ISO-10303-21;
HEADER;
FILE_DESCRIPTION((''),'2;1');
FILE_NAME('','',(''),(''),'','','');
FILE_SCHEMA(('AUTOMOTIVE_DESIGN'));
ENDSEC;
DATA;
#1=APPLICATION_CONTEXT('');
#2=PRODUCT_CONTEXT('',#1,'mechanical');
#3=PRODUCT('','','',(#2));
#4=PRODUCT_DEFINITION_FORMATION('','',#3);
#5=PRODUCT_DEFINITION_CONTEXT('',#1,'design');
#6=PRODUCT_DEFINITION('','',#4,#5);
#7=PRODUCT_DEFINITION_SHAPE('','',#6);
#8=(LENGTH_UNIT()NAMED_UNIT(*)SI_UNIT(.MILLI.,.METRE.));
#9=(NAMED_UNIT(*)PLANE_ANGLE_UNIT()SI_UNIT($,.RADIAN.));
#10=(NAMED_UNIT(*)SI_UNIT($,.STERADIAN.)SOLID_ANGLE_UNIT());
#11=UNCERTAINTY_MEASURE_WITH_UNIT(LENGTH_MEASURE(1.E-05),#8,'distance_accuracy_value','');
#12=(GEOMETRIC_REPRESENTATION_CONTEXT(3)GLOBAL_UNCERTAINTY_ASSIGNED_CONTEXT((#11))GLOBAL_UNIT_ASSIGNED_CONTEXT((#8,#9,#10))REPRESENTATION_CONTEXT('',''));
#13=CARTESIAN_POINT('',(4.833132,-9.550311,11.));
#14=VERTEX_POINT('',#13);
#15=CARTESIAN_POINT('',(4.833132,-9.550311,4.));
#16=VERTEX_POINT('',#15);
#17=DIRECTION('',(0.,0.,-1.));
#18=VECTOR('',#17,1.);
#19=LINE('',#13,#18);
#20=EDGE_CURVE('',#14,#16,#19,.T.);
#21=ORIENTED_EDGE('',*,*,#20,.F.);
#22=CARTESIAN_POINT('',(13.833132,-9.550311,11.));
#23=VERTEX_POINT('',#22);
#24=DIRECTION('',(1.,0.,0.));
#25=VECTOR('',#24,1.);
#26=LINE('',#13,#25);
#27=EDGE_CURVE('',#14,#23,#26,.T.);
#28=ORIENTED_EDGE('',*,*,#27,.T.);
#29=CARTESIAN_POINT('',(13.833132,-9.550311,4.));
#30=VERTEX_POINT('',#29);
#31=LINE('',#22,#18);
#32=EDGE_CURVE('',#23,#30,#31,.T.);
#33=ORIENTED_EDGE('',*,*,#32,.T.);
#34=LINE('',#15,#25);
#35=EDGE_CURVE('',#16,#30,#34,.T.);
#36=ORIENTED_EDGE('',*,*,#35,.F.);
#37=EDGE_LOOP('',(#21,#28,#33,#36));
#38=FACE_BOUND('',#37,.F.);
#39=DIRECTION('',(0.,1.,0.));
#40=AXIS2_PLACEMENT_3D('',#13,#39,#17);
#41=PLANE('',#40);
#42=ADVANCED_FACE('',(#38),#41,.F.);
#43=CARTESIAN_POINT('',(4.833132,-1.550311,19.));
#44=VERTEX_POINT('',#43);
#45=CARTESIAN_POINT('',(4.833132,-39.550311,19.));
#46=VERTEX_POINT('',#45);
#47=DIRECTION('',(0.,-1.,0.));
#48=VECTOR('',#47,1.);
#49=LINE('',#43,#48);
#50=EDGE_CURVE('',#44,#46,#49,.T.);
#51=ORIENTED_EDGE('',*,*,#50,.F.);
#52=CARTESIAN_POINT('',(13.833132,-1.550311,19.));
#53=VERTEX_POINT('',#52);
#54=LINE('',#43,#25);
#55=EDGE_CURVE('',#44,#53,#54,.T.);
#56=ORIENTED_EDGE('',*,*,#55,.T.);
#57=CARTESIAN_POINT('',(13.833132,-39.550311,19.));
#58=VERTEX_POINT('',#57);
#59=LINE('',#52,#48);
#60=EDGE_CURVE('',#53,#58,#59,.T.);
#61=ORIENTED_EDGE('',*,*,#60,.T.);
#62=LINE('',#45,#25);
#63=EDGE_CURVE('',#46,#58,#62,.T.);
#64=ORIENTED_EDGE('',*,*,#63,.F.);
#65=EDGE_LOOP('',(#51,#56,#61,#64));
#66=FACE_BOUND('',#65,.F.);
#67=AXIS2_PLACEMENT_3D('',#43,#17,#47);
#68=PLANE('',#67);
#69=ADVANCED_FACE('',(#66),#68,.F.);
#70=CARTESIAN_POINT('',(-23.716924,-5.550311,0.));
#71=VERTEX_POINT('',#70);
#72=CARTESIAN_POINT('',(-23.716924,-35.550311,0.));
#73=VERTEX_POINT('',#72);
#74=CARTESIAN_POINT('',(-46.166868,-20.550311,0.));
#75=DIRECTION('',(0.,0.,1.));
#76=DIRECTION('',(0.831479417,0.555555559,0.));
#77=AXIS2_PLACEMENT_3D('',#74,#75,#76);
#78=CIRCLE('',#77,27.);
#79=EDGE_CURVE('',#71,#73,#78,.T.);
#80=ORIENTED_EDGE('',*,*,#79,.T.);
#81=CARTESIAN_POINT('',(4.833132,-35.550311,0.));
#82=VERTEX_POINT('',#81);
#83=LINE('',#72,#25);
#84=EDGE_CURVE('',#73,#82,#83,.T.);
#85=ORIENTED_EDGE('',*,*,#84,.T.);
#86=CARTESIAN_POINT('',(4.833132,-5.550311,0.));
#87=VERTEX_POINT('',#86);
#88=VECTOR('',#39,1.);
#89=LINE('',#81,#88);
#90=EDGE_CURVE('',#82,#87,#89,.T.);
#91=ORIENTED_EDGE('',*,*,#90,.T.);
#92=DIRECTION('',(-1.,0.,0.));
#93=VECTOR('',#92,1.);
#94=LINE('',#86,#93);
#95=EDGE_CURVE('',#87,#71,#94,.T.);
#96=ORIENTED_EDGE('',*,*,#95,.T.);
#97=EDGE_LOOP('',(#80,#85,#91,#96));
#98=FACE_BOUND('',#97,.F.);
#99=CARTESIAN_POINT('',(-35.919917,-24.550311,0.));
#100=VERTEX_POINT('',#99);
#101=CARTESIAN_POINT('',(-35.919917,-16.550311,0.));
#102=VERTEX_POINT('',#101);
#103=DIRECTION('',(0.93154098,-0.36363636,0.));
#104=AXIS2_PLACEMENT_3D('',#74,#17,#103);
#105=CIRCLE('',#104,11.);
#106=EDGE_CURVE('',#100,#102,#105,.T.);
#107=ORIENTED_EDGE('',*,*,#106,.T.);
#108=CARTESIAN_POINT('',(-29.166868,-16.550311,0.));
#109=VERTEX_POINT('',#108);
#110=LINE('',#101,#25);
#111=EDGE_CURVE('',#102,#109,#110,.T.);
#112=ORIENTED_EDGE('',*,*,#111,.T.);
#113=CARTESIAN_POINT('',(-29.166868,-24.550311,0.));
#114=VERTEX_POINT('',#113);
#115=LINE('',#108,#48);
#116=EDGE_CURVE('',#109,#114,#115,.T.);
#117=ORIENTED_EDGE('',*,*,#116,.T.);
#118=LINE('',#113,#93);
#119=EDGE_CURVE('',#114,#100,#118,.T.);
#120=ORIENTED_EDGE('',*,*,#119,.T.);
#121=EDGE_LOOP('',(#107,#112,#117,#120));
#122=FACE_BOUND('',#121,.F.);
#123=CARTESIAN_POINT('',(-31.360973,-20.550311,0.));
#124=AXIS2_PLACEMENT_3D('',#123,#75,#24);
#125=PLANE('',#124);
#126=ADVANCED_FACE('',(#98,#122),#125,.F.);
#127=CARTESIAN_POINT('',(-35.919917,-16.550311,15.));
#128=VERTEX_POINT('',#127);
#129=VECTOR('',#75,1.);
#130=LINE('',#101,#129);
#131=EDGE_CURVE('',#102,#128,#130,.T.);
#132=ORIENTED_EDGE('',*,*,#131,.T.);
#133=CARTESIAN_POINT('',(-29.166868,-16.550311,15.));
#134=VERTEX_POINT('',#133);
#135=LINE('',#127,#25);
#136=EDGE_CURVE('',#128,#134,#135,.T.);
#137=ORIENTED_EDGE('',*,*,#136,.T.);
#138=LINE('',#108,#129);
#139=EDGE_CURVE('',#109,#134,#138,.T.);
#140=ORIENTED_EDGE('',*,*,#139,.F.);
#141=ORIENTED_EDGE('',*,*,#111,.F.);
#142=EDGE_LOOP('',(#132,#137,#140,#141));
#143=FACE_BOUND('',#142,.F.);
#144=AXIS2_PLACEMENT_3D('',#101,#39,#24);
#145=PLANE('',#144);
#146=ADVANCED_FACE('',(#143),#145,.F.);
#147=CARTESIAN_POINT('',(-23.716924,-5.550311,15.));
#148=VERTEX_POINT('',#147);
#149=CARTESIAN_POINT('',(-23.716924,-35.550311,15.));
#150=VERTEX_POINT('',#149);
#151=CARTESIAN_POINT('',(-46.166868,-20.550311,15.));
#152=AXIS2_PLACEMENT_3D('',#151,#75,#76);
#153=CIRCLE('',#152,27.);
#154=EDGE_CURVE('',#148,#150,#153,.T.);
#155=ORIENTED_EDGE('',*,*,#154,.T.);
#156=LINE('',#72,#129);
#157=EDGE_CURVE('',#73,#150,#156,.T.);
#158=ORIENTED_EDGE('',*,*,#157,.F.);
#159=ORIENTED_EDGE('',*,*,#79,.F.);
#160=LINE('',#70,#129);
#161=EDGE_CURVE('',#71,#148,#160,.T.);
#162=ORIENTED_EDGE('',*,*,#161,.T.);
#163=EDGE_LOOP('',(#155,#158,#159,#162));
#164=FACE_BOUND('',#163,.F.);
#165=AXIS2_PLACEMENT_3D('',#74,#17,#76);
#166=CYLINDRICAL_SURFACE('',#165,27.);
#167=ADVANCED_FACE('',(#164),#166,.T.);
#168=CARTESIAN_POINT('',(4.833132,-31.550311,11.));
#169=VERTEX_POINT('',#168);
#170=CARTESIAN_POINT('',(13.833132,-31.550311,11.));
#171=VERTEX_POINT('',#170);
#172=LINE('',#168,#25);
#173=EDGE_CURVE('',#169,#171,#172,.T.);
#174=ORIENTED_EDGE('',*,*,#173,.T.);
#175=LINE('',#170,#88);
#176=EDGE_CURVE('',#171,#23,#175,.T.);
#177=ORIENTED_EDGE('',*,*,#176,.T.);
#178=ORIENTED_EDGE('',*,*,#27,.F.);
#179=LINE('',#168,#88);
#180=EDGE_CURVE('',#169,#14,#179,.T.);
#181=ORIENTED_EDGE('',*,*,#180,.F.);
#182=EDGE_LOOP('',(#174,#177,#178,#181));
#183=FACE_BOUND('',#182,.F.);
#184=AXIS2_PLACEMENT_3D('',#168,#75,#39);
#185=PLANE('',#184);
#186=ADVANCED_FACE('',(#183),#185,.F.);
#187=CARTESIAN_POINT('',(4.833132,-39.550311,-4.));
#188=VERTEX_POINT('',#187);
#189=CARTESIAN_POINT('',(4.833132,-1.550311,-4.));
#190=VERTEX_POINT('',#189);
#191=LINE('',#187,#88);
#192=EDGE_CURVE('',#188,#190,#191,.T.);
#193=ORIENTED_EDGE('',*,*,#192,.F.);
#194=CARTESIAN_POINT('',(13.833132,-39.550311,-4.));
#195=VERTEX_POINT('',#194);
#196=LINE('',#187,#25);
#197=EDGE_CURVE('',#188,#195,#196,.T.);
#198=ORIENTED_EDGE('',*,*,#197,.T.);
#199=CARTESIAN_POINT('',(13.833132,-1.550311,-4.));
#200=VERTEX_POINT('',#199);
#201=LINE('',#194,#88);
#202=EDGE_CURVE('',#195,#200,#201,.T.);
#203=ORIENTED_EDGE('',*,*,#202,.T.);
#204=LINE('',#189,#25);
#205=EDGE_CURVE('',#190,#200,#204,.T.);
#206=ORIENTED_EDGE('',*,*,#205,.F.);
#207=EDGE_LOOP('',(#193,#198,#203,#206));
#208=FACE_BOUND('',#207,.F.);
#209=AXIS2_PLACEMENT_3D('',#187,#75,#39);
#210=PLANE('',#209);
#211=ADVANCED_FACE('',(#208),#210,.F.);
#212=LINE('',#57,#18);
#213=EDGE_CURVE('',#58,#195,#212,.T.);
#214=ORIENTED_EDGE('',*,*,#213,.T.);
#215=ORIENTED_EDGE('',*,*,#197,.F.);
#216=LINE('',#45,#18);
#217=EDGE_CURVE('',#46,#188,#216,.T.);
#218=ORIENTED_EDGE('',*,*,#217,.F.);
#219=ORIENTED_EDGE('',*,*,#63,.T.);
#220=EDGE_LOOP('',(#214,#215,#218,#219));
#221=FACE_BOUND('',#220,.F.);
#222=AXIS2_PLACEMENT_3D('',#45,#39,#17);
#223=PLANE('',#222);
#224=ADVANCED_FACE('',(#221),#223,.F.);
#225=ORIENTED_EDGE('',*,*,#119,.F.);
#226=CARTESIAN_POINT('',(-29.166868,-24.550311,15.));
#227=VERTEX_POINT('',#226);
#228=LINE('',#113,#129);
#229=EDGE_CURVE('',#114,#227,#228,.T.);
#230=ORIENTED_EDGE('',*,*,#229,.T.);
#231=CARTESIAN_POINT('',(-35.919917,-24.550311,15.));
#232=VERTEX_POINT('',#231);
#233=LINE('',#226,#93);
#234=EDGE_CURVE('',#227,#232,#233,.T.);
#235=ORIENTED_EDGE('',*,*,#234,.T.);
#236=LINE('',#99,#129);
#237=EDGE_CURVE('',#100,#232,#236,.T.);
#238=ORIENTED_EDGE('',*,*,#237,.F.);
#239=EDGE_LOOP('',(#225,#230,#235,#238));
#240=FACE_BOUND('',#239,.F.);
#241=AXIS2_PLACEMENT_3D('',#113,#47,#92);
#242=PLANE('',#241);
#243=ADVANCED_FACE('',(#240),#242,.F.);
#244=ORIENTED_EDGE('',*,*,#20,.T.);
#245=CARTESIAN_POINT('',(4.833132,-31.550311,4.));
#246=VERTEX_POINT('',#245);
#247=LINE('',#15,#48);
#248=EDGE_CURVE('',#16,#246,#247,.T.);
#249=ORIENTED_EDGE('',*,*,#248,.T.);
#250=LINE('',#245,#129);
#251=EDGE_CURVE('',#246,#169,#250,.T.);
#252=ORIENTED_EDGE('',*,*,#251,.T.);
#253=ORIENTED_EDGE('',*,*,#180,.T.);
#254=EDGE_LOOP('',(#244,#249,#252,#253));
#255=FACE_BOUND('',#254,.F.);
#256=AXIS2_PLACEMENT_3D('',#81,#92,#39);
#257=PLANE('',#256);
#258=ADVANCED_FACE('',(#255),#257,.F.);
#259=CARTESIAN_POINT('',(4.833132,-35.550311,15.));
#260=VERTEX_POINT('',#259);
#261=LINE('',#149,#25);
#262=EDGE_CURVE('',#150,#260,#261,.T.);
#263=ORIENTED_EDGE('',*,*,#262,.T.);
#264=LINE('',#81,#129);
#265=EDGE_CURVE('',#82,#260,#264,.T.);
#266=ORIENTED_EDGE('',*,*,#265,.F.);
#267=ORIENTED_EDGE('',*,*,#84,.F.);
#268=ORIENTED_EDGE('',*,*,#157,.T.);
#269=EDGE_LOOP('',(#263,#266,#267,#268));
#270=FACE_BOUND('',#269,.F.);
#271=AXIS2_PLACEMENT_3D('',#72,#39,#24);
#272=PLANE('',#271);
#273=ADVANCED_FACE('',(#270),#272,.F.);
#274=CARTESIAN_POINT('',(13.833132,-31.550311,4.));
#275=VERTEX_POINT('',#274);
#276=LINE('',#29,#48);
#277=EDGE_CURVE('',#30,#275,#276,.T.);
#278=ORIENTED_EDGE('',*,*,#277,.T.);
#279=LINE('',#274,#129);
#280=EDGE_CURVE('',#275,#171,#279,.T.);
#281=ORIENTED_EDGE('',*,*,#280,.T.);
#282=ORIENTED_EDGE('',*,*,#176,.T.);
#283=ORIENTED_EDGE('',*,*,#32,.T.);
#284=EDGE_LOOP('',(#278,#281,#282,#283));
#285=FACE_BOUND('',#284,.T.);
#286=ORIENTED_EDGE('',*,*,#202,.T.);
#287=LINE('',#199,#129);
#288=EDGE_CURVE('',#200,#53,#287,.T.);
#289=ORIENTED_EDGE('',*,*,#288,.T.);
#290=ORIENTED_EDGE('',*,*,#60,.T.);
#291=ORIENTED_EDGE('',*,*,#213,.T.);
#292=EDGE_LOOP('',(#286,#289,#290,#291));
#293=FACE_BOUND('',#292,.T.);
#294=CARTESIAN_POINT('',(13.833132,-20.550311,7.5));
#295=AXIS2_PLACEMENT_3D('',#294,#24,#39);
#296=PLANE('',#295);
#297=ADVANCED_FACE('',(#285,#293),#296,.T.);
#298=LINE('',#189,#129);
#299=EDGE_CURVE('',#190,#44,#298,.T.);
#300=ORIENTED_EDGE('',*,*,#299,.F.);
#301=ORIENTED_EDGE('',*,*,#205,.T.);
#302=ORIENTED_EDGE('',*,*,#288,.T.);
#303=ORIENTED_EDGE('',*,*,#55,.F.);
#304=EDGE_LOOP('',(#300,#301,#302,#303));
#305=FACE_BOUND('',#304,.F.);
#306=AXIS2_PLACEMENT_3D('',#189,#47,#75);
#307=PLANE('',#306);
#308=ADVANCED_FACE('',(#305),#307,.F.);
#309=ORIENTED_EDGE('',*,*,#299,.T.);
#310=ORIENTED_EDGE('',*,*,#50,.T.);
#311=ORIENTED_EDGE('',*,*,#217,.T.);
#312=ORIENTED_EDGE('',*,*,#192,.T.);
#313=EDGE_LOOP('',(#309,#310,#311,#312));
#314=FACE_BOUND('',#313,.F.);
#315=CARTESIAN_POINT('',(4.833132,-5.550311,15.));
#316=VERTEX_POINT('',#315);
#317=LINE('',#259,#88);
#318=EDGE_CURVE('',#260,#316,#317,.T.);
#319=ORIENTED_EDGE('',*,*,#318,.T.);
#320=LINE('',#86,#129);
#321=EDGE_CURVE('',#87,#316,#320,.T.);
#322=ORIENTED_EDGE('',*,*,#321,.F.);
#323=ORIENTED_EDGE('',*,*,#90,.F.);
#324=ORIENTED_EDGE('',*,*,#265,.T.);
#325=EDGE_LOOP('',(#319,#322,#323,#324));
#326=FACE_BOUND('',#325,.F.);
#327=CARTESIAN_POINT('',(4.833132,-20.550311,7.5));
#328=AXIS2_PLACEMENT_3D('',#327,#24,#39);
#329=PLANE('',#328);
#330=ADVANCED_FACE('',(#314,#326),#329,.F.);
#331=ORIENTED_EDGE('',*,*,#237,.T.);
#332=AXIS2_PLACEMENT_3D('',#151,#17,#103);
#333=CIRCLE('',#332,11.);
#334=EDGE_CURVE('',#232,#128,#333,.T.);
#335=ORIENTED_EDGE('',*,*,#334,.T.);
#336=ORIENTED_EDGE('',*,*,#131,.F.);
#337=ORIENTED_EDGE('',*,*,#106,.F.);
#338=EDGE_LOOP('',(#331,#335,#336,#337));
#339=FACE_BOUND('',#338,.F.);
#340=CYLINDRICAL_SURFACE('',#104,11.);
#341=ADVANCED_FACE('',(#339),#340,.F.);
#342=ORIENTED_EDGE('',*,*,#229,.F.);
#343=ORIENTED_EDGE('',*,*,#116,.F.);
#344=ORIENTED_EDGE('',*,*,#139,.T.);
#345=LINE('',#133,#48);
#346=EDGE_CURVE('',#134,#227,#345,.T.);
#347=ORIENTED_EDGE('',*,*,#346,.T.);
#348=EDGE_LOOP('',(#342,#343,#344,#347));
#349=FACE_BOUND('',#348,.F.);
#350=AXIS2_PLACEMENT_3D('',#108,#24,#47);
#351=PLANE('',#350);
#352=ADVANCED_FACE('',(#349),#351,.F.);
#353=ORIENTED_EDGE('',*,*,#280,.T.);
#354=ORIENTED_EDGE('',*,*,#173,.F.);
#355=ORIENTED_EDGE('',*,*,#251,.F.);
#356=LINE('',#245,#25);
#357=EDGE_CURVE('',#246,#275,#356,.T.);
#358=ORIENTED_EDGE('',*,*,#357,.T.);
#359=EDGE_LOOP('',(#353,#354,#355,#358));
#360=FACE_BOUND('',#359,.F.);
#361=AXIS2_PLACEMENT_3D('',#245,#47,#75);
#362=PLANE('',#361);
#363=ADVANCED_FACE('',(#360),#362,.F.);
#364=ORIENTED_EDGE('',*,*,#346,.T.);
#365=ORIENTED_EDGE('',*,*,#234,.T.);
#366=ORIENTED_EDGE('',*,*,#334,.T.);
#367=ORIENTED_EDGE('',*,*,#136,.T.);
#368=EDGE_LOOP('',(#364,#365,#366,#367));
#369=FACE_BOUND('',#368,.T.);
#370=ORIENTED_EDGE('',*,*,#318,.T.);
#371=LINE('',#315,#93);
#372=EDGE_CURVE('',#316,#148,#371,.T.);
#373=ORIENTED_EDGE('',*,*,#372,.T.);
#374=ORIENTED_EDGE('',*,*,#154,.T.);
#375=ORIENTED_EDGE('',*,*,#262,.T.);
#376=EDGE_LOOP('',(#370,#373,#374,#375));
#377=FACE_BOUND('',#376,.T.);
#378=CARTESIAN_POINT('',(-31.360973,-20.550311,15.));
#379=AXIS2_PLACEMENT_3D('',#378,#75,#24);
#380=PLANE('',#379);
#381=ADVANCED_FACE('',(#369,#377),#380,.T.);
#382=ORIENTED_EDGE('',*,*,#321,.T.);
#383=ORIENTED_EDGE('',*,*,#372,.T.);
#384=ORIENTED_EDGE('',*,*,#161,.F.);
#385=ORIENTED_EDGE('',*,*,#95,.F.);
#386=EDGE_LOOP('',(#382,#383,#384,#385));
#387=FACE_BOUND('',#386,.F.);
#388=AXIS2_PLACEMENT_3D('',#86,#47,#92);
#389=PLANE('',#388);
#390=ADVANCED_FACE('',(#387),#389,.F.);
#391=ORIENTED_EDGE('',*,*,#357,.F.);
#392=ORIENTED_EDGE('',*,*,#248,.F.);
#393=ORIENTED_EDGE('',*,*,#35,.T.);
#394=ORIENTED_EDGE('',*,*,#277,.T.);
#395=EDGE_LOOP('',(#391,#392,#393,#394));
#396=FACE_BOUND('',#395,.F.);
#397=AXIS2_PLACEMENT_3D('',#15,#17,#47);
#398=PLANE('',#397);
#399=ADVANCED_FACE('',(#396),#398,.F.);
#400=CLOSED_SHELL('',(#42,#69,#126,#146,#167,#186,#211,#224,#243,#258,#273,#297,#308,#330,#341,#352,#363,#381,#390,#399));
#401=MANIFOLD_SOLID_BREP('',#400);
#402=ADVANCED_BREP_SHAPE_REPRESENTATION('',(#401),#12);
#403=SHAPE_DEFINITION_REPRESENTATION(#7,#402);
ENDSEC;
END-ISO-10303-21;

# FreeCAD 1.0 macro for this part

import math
import FreeCAD as App
import Part
import Sketcher

V = App.Vector

doc = App.newDocument("Part")
body = doc.addObject("PartDesign::Body", "Body")

sketch1 = doc.addObject("Sketcher::SketchObject", "Sketch")
body.addObject(sketch1)
sketch1.AttachmentSupport = (doc.XY_Plane, [""])
sketch1.MapMode = "FlatFace"
sketch1.addGeometry([
    Part.LineSegment(V(5, -36, 0), V(5, -6, 0)),
    Part.LineSegment(V(5, -6, 0), V(-24, -6, 0)),
    Part.ArcOfCircle(Part.Circle(V(-46, -21, 0), V(0, 0, 1), 27), math.radians(34), math.radians(326)),
    Part.LineSegment(V(-24, -36, 0), V(5, -36, 0)),
    Part.LineSegment(V(-36, -17, 0), V(-29, -17, 0)),
    Part.LineSegment(V(-29, -17, 0), V(-29, -25, 0)),
    Part.LineSegment(V(-29, -25, 0), V(-36, -25, 0)),
    Part.ArcOfCircle(Part.Circle(V(-46, -21, 0), V(0, 0, 1), 11), math.radians(21), math.radians(339)),
], False)
sketch1.addConstraint([
    Sketcher.Constraint("Coincident", 0, 2, 1, 1),
    Sketcher.Constraint("Coincident", 1, 2, 2, 1),
    Sketcher.Constraint("Coincident", 2, 2, 3, 1),
    Sketcher.Constraint("Coincident", 3, 2, 0, 1),
    Sketcher.Constraint("Coincident", 4, 2, 5, 1),
    Sketcher.Constraint("Coincident", 5, 2, 6, 1),
    Sketcher.Constraint("Coincident", 6, 2, 7, 2),
    Sketcher.Constraint("Coincident", 7, 1, 4, 1),
    Sketcher.Constraint("Vertical", 0),
    Sketcher.Constraint("Horizontal", 1),
    Sketcher.Constraint("Horizontal", 3),
    Sketcher.Constraint("Horizontal", 4),
    Sketcher.Constraint("Vertical", 5),
    Sketcher.Constraint("Horizontal", 6),
    Sketcher.Constraint("Coincident", 7, 3, 2, 3),
    Sketcher.Constraint("Vertical", 1, 2, 2, 2),
    Sketcher.Constraint("Vertical", 6, 2, 7, 1),
    Sketcher.Constraint("Radius", 2, 27.0),
    Sketcher.Constraint("Radius", 7, 11.0),
    Sketcher.Constraint("DistanceY", 0, 1, 0, 2, 30.0),
    Sketcher.Constraint("DistanceY", 5, 2, 5, 1, 8.0),
    Sketcher.Constraint("DistanceX", 7, 3, 0, 2, 51.0),
    Sketcher.Constraint("DistanceX", 7, 3, 4, 2, 17.0),
    Sketcher.Constraint("DistanceX", 2, 3, -1, 1, 46.166868),
    Sketcher.Constraint("DistanceY", 2, 3, -1, 1, 20.550311),
])
pad1 = doc.addObject("PartDesign::Pad", "Pad")
body.addObject(pad1)
pad1.Profile = sketch1
pad1.Length = 15

sketch2 = doc.addObject("Sketcher::SketchObject", "Sketch001")
body.addObject(sketch2)
sketch2.AttachmentSupport = (doc.YZ_Plane, [""])
sketch2.MapMode = "FlatFace"
sketch2.AttachmentOffset = App.Placement(V(0, 0, 4.833132), App.Rotation())
sketch2.addGeometry([
    Part.LineSegment(V(-2, 19, 0), V(-40, 19, 0)),
    Part.LineSegment(V(-40, 19, 0), V(-40, -4, 0)),
    Part.LineSegment(V(-40, -4, 0), V(-2, -4, 0)),
    Part.LineSegment(V(-2, -4, 0), V(-2, 19, 0)),
    Part.LineSegment(V(-32, 4, 0), V(-32, 11, 0)),
    Part.LineSegment(V(-32, 11, 0), V(-10, 11, 0)),
    Part.LineSegment(V(-10, 11, 0), V(-10, 4, 0)),
    Part.LineSegment(V(-10, 4, 0), V(-32, 4, 0)),
], False)
sketch2.addConstraint([
    Sketcher.Constraint("Coincident", 0, 2, 1, 1),
    Sketcher.Constraint("Coincident", 1, 2, 2, 1),
    Sketcher.Constraint("Coincident", 2, 2, 3, 1),
    Sketcher.Constraint("Coincident", 3, 2, 0, 1),
    Sketcher.Constraint("Coincident", 4, 2, 5, 1),
    Sketcher.Constraint("Coincident", 5, 2, 6, 1),
    Sketcher.Constraint("Coincident", 6, 2, 7, 1),
    Sketcher.Constraint("Coincident", 7, 2, 4, 1),
    Sketcher.Constraint("Horizontal", 0),
    Sketcher.Constraint("Vertical", 1),
    Sketcher.Constraint("Horizontal", 2),
    Sketcher.Constraint("Vertical", 3),
    Sketcher.Constraint("Vertical", 4),
    Sketcher.Constraint("Horizontal", 5),
    Sketcher.Constraint("Vertical", 6),
    Sketcher.Constraint("Horizontal", 7),
    Sketcher.Constraint("DistanceX", 0, 2, 0, 1, 38.0),
    Sketcher.Constraint("DistanceX", 5, 1, 5, 2, 22.0),
    Sketcher.Constraint("DistanceY", 1, 2, 1, 1, 23.0),
    Sketcher.Constraint("DistanceY", 4, 1, 4, 2, 7.0),
    Sketcher.Constraint("DistanceY", -1, 1, 0, 2, 19.0),
    Sketcher.Constraint("DistanceY", -1, 1, 4, 2, 11.0),
    Sketcher.Constraint("DistanceX", 0, 2, 4, 2, 8.0),
    Sketcher.Constraint("DistanceX", 0, 2, -1, 1, 39.550311),
])
pad2 = doc.addObject("PartDesign::Pad", "Pad001")
body.addObject(pad2)
pad2.Profile = sketch2
pad2.Length = 9

doc.recompute()
